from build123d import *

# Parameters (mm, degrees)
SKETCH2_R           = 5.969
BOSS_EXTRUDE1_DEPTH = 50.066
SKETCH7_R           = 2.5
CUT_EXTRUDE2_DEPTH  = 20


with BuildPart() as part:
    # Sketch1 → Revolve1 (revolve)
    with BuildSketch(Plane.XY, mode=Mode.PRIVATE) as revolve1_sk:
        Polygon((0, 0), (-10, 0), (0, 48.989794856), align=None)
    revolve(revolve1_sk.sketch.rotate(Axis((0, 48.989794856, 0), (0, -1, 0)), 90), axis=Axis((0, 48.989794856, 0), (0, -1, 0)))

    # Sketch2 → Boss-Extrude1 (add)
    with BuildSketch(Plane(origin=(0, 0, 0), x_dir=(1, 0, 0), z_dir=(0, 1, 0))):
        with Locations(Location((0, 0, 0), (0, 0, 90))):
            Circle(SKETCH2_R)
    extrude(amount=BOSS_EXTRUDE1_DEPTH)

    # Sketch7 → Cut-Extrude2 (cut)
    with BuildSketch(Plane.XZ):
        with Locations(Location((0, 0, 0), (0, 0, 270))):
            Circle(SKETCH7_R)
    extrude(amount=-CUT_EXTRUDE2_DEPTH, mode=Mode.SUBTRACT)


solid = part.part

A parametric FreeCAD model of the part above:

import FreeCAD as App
import Part
import Sketcher

doc = App.newDocument("Part")
body = doc.addObject("PartDesign::Body", "Body")

sketch1 = body.newObject("Sketcher::SketchObject", "Sketch")
sketch1.AttachmentSupport = (doc.getObject("XY_Plane"), [""])
sketch1.MapMode = "FlatFace"
sketch1.addGeometry([
    Part.LineSegment(App.Vector(-10, 0, 0), App.Vector(0, 0, 0)),
    Part.LineSegment(App.Vector(0, 0, 0), App.Vector(0, 48.989795, 0)),
    Part.LineSegment(App.Vector(0, 48.989795, 0), App.Vector(-10, 0, 0)),
], False)
sketch1.addConstraint([
    Sketcher.Constraint("Coincident", 0, 2, 1, 1),
    Sketcher.Constraint("Coincident", 1, 2, 2, 1),
    Sketcher.Constraint("Coincident", 2, 2, 0, 1),
    Sketcher.Constraint("Horizontal", 0),
    Sketcher.Constraint("Vertical", 1),
    Sketcher.Constraint("Coincident", 0, 2, -1, 1),
    Sketcher.Constraint("DistanceX", 0, 1, 0, 2, 10.0),
    Sketcher.Constraint("Distance", 2, 50.0),
])
revolution = body.newObject("PartDesign::Revolution", "Revolution")
revolution.Profile = sketch1
revolution.ReferenceAxis = (sketch1, ["V_Axis"])
revolution.Angle = 360

sketch2 = body.newObject("Sketcher::SketchObject", "Sketch001")
sketch2.AttachmentSupport = (doc.getObject("XZ_Plane"), [""])
sketch2.MapMode = "FlatFace"
sketch2.addGeometry(Part.Circle(App.Vector(0, 0, 0), App.Vector(0, 0, 1), 5.969), False)
sketch2.addConstraint([
    Sketcher.Constraint("Coincident", 0, 3, -1, 1),
    Sketcher.Constraint("Diameter", 0, 11.938),
])
pad1 = body.newObject("PartDesign::Pad", "Pad")
pad1.Profile = sketch2
pad1.Length = 50.066
pad1.Reversed = True

sketch3 = body.newObject("Sketcher::SketchObject", "Sketch002")
sketch3.AttachmentSupport = (doc.getObject("XZ_Plane"), [""])
sketch3.MapMode = "FlatFace"
sketch3.addGeometry(Part.Circle(App.Vector(0, 0, 0), App.Vector(0, 0, 1), 2.5), False)
sketch3.addConstraint([
    Sketcher.Constraint("Coincident", 0, 3, -1, 1),
    Sketcher.Constraint("Diameter", 0, 5.0),
])
pocket1 = body.newObject("PartDesign::Pocket", "Pocket")
pocket1.Profile = sketch3
pocket1.Length = 20

doc.recompute()
